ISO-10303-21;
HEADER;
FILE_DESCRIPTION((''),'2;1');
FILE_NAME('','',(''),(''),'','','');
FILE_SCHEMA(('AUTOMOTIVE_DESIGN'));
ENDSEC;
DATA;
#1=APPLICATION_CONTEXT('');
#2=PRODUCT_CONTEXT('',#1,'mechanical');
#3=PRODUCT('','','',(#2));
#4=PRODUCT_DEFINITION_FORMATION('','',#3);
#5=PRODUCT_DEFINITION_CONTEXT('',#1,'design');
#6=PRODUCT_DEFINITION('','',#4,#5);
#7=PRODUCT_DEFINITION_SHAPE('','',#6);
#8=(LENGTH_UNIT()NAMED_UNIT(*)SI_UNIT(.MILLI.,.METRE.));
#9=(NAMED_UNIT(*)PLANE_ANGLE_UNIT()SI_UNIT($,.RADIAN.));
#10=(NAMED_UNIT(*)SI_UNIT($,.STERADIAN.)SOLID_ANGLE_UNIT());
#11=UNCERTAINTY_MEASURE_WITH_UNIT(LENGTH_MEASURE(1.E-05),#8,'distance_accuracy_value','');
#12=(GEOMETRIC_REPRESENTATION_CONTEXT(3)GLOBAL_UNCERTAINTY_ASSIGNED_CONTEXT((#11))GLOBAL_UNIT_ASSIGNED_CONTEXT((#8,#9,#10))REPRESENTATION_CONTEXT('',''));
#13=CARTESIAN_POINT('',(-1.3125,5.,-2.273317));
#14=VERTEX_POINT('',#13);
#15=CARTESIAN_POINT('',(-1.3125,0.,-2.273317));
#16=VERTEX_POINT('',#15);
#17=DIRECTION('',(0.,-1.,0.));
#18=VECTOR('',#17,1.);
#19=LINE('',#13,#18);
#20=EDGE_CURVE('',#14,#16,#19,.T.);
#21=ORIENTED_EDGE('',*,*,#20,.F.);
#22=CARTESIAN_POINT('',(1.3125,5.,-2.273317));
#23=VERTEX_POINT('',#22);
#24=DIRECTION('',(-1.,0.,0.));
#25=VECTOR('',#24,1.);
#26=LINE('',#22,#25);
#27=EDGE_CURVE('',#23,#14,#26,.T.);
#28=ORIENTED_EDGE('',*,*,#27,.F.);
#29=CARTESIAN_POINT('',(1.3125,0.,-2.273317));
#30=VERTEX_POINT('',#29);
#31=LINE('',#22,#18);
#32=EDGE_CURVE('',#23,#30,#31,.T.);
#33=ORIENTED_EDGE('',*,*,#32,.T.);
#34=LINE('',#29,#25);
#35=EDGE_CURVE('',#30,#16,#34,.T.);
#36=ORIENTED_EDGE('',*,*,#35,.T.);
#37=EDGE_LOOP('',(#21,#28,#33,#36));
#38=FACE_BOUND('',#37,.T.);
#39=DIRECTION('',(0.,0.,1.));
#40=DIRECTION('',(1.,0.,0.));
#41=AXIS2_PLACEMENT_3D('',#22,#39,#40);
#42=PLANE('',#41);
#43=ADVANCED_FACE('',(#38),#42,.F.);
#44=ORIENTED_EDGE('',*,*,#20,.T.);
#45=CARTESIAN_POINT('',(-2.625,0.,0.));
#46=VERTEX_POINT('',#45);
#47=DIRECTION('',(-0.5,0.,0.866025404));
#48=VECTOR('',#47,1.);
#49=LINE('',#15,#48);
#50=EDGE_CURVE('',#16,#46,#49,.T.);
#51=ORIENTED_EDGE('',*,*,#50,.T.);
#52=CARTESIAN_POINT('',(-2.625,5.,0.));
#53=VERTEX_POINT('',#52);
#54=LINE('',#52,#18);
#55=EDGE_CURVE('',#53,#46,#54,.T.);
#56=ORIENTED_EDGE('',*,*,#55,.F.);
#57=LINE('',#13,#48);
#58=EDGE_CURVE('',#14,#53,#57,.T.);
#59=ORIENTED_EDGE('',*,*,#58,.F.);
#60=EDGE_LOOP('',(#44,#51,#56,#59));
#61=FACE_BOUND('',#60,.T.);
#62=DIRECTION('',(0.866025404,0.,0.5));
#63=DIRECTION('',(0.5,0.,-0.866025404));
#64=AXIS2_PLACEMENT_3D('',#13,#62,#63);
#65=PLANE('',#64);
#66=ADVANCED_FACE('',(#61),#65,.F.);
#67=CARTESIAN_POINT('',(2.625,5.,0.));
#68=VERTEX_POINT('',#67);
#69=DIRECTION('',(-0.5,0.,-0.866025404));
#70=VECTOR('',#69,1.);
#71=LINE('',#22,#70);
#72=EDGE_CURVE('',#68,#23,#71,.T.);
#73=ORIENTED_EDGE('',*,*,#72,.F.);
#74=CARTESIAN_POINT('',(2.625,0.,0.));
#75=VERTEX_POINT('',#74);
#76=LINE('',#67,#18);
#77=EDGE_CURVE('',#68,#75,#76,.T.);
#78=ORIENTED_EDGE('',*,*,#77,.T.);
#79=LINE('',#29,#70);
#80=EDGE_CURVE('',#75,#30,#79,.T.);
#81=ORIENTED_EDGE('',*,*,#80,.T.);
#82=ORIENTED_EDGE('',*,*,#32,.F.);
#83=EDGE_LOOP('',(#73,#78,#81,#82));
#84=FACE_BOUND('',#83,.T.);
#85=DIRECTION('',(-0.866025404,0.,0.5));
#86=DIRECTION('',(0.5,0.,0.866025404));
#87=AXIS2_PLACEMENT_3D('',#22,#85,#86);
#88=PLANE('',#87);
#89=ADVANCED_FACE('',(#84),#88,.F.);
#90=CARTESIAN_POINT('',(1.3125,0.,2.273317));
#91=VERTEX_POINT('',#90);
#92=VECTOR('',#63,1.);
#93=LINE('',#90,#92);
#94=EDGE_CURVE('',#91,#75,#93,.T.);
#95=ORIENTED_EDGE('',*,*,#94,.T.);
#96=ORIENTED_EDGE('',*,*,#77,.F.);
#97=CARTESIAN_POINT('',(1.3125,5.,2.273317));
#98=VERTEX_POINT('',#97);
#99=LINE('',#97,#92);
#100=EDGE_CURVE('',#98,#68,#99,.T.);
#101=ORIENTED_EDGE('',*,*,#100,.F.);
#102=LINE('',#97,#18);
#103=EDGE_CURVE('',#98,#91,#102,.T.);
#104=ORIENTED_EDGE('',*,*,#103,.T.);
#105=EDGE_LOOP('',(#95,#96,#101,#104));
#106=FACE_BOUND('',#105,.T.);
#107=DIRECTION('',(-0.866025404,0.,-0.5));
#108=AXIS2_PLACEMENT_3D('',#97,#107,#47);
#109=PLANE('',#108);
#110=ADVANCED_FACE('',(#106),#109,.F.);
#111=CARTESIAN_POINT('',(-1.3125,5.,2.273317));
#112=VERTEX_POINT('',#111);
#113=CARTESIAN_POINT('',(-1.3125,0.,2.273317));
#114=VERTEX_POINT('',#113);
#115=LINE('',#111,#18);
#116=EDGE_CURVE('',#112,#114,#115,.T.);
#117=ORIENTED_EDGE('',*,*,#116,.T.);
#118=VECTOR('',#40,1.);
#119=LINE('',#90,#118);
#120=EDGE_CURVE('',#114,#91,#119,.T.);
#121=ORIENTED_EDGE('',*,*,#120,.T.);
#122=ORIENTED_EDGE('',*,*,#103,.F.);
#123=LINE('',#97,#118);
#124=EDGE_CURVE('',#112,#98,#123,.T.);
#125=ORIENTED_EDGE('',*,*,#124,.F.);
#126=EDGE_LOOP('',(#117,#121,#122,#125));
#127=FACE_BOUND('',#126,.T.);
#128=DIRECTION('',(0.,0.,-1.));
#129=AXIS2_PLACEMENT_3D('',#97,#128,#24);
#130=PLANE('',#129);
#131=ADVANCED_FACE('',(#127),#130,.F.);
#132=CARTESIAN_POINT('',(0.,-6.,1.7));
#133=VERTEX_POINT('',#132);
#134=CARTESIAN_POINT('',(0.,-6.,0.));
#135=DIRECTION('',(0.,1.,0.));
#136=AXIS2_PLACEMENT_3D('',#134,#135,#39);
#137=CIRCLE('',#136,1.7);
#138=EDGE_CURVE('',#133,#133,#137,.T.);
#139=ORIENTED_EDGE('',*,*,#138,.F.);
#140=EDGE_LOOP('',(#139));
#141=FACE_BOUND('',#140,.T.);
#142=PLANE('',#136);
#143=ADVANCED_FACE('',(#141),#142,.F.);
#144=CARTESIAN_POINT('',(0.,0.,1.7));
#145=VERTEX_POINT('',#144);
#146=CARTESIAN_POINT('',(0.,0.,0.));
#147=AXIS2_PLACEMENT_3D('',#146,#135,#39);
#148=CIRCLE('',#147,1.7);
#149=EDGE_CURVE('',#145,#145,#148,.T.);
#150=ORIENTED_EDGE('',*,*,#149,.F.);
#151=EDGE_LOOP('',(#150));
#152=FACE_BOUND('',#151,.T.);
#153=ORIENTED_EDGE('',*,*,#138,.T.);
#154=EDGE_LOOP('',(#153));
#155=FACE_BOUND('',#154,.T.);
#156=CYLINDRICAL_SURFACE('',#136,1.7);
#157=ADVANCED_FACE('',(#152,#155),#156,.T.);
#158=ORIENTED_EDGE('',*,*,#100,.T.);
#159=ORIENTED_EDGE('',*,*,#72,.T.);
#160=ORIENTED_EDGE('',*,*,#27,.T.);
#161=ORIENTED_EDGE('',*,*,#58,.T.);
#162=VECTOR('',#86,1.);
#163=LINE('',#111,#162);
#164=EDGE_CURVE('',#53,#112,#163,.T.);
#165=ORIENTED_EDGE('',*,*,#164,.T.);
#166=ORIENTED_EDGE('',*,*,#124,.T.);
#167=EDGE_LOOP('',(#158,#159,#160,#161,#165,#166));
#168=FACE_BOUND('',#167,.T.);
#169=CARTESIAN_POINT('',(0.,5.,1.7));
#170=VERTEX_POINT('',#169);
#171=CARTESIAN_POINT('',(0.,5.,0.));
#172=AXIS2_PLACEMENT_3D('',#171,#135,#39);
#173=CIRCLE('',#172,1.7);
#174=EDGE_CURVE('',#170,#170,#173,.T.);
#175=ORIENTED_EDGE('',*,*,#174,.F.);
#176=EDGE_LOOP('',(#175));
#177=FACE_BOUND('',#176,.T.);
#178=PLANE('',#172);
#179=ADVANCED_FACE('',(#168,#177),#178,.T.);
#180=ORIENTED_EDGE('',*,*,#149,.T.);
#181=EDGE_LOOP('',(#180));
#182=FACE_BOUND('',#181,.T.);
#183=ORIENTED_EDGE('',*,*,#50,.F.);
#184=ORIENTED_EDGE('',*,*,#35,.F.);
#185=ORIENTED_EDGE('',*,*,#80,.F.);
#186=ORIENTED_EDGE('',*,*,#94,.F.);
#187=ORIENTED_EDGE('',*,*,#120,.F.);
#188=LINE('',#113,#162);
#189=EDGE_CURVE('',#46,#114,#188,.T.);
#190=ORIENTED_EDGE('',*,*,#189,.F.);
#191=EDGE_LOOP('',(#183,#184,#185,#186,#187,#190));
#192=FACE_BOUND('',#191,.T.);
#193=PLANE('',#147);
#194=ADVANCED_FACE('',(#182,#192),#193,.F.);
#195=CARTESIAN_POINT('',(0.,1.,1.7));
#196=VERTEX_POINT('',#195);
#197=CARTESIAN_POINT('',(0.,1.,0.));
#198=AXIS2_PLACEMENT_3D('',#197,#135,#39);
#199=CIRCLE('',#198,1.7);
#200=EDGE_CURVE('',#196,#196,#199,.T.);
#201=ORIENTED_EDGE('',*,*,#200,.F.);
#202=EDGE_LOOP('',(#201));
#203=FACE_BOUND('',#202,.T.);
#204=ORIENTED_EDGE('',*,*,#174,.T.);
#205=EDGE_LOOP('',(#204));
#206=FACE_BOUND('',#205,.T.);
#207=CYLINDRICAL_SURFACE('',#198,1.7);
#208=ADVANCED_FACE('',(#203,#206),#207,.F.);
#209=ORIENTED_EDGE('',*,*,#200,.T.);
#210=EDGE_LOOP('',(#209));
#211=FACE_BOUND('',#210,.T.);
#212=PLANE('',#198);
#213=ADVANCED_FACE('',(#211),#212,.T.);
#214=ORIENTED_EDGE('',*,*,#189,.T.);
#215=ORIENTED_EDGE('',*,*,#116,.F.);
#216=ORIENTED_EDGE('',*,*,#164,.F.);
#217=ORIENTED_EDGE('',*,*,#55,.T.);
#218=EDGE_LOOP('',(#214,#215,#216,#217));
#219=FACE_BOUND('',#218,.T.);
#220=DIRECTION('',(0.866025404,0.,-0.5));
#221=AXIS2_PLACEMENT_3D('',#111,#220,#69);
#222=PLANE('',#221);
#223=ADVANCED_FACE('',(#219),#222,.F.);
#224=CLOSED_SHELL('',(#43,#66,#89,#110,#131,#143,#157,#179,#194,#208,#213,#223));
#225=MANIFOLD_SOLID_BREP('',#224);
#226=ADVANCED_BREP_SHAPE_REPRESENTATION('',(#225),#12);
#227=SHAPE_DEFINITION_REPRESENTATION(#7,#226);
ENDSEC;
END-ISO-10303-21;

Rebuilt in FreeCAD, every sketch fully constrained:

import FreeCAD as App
import Part
import Sketcher
from FreeCAD import Vector
Q = App.Units.Quantity

doc = App.newDocument("Part")
params = doc.addObject("Spreadsheet::Sheet", "Params")
for row, (alias, value) in enumerate([
    ("pad1_length", "5 mm"),
    ("sketch2_diameter", "3.4 mm"),
    ("pad2_length", "6 mm"),
    ("sketch3_diameter", "3.4 mm"),
    ("pocket1_length", "4 mm"),
], start=1):
    params.set(f"A{row}", alias)
    params.set(f"B{row}", "=" + value)
    params.setAlias(f"B{row}", alias)

body = doc.addObject("PartDesign::Body", "Body")

sketch1 = body.newObject("Sketcher::SketchObject", "Sketch")
sketch1.AttachmentSupport = (doc.getObject("XZ_Plane"), [""])
sketch1.MapMode = "FlatFace"
sketch1.addGeometry([
    Part.LineSegment(Vector(1.3, 2.3, 0), Vector(2.6, 0, 0)),
    Part.LineSegment(Vector(2.6, 0, 0), Vector(1.3, -2.3, 0)),
    Part.LineSegment(Vector(1.3, -2.3, 0), Vector(-1.3, -2.3, 0)),
    Part.LineSegment(Vector(-1.3, -2.3, 0), Vector(-2.6, 0, 0)),
    Part.LineSegment(Vector(-2.6, 0, 0), Vector(-1.3, 2.3, 0)),
    Part.LineSegment(Vector(-1.3, 2.3, 0), Vector(1.3, 2.3, 0)),
], False)
sketch1.addConstraint([
    Sketcher.Constraint("Coincident", 0, 2, 1, 1),
    Sketcher.Constraint("Coincident", 1, 2, 2, 1),
    Sketcher.Constraint("Coincident", 2, 2, 3, 1),
    Sketcher.Constraint("Coincident", 3, 2, 4, 1),
    Sketcher.Constraint("Coincident", 4, 2, 5, 1),
    Sketcher.Constraint("Coincident", 5, 2, 0, 1),
    Sketcher.Constraint("Horizontal", 2),
    Sketcher.Constraint("Horizontal", 5),
    Sketcher.Constraint("Symmetric", 0, 2, 3, 2, -1, 1),
    Sketcher.Constraint("Symmetric", 1, 2, 4, 2, -1, 1),
    Sketcher.Constraint("PointOnObject", 0, 2, -1),
    Sketcher.Constraint("Parallel", 0, 3),
    Sketcher.Constraint("Vertical", 2, 2, 4, 2),
    Sketcher.Constraint("Angle", 0, Q("-60 deg")),
    Sketcher.Constraint("DistanceX", 2, 2, 2, 1, Q("2.625 mm")),
    Sketcher.Constraint("DistanceX", 3, 2, 0, 2, Q("5.25 mm")),
])
pad1 = body.newObject("PartDesign::Pad", "Pad")
pad1.Profile = sketch1
pad1.setExpression("Length", "Params.pad1_length")
pad1.Reversed = True

sketch2 = body.newObject("Sketcher::SketchObject", "Sketch001")
sketch2.AttachmentSupport = (doc.getObject("XZ_Plane"), [""])
sketch2.MapMode = "FlatFace"
sketch2.addGeometry(Part.Circle(Vector(0, 0, 0), Vector(0, 0, 1), 1.7), False)
sketch2.addConstraint([
    Sketcher.Constraint("Coincident", 0, 3, -1, 1),
    Sketcher.Constraint("Diameter", 0, Q("3.4 mm")),
])
sketch2.setExpression("Constraints[1]", "Params.sketch2_diameter")
pad2 = body.newObject("PartDesign::Pad", "Pad001")
pad2.Profile = sketch2
pad2.setExpression("Length", "Params.pad2_length")

sketch3 = body.newObject("Sketcher::SketchObject", "Sketch002")
sketch3.AttachmentSupport = (doc.getObject("XZ_Plane"), [""])
sketch3.MapMode = "FlatFace"
sketch3.AttachmentOffset = App.Placement(Vector(0, 0, -5), App.Rotation())
sketch3.addGeometry(Part.Circle(Vector(0, 0, 0), Vector(0, 0, 1), 1.7), False)
sketch3.addConstraint([
    Sketcher.Constraint("Coincident", 0, 3, -1, 1),
    Sketcher.Constraint("Diameter", 0, Q("3.4 mm")),
])
sketch3.setExpression("Constraints[1]", "Params.sketch3_diameter")
pocket1 = body.newObject("PartDesign::Pocket", "Pocket")
pocket1.Profile = sketch3
pocket1.setExpression("Length", "Params.pocket1_length")
pocket1.Reversed = True

doc.recompute()
